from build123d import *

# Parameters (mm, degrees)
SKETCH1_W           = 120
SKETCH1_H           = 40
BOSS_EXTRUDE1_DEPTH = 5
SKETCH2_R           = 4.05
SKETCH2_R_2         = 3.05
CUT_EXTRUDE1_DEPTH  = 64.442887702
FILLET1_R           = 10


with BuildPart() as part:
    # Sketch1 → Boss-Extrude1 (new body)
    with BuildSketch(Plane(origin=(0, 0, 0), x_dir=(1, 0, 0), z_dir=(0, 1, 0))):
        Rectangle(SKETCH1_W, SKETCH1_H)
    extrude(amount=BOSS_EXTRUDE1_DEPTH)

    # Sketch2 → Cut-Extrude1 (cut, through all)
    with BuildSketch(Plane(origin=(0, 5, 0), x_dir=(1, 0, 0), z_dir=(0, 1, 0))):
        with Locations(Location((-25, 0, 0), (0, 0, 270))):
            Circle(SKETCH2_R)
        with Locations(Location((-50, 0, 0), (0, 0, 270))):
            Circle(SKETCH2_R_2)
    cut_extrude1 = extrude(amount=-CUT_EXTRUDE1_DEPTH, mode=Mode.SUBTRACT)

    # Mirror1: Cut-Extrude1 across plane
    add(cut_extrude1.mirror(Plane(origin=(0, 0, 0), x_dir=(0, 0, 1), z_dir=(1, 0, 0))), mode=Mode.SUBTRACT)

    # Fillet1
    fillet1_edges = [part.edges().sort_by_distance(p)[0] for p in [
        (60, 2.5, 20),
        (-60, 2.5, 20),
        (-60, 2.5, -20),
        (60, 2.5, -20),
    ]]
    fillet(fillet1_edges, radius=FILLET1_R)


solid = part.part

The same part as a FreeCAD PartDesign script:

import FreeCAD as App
import Part
import Sketcher
Q = App.Units.Quantity


def edges_at(feature, points):
    """Names of the edges that pass closest to the given points."""
    edges = feature.Shape.Edges
    near = lambda p: min(range(len(edges)), key=lambda i: edges[i].distToShape(Part.Vertex(*p))[0])
    return sorted({f"Edge{near(p) + 1}" for p in points})


def add_polygon(sketch, points):
    """Adds a closed chain of lines whose ends are joined by coincident constraints."""
    first, n = sketch.GeometryCount, len(points)
    for a, b in zip(points, points[1:] + points[:1]):
        sketch.addGeometry(Part.LineSegment(App.Vector(*a, 0), App.Vector(*b, 0)), False)
    for i in range(n):
        sketch.addConstraint(Sketcher.Constraint("Coincident", first + i, 2, first + (i + 1) % n, 1))

doc = App.newDocument("Part")
body = doc.addObject("PartDesign::Body", "Body")

# Sketch on XZ plane
sketch1 = body.newObject("Sketcher::SketchObject", "Sketch")
sketch1.AttachmentSupport = (doc.getObject("XZ_Plane"), [""])
sketch1.MapMode = "FlatFace"
add_polygon(sketch1, [(-60, -20), (-60, 20), (60, 20), (60, -20)])  # lines 0-3
sketch1.addConstraint([
    Sketcher.Constraint("Vertical", 0),
    Sketcher.Constraint("Horizontal", 1),
    Sketcher.Constraint("Vertical", 2),
    Sketcher.Constraint("Horizontal", 3),
    Sketcher.Constraint("Symmetric", 0, 2, 2, 2, -1, 1),
    Sketcher.Constraint("DistanceX", 1, 1, 1, 2, Q("120 mm")),
    Sketcher.Constraint("DistanceY", 0, 1, 0, 2, Q("40 mm")),
])
pad1 = body.newObject("PartDesign::Pad", "Pad")
pad1.Profile = sketch1
pad1.Length = 5
pad1.Reversed = True

# Sketch on XZ plane
sketch2 = body.newObject("Sketcher::SketchObject", "Sketch001")
sketch2.AttachmentSupport = (doc.getObject("XZ_Plane"), [""])
sketch2.MapMode = "FlatFace"
sketch2.AttachmentOffset = App.Placement(App.Vector(0, 0, -5), App.Rotation())
sketch2.addGeometry([
    Part.Circle(App.Vector(-25, 0, 0), App.Vector(0, 0, 1), 4),
    Part.Circle(App.Vector(-50, 0, 0), App.Vector(0, 0, 1), 3),
], False)
sketch2.addConstraint([
    Sketcher.Constraint("PointOnObject", 0, 3, -1),
    Sketcher.Constraint("PointOnObject", 1, 3, -1),
    Sketcher.Constraint("Diameter", 0, Q("8.1 mm")),
    Sketcher.Constraint("Diameter", 1, Q("6.1 mm")),
    Sketcher.Constraint("DistanceX", 0, 3, -1, 1, Q("25 mm")),
    Sketcher.Constraint("DistanceX", 1, 3, -1, 1, Q("50 mm")),
])
pocket1 = body.newObject("PartDesign::Pocket", "Pocket")
pocket1.Profile = sketch2
pocket1.Type = "ThroughAll"
pocket1.Reversed = True
doc.recompute()

mirrored = body.newObject("PartDesign::Mirrored", "Mirrored")
mirrored.Originals = [pocket1]
mirrored.MirrorPlane = (doc.getObject("YZ_Plane"), [""])
body.Tip = mirrored
doc.recompute()

fillet = body.newObject("PartDesign::Fillet", "Fillet")
fillet.Base = (mirrored, edges_at(mirrored, [
    (60, 2.5, 20),
    (-60, 2.5, 20),
    (-60, 2.5, -20),
    (60, 2.5, -20),
]))
fillet.Radius = 10

doc.recompute()
